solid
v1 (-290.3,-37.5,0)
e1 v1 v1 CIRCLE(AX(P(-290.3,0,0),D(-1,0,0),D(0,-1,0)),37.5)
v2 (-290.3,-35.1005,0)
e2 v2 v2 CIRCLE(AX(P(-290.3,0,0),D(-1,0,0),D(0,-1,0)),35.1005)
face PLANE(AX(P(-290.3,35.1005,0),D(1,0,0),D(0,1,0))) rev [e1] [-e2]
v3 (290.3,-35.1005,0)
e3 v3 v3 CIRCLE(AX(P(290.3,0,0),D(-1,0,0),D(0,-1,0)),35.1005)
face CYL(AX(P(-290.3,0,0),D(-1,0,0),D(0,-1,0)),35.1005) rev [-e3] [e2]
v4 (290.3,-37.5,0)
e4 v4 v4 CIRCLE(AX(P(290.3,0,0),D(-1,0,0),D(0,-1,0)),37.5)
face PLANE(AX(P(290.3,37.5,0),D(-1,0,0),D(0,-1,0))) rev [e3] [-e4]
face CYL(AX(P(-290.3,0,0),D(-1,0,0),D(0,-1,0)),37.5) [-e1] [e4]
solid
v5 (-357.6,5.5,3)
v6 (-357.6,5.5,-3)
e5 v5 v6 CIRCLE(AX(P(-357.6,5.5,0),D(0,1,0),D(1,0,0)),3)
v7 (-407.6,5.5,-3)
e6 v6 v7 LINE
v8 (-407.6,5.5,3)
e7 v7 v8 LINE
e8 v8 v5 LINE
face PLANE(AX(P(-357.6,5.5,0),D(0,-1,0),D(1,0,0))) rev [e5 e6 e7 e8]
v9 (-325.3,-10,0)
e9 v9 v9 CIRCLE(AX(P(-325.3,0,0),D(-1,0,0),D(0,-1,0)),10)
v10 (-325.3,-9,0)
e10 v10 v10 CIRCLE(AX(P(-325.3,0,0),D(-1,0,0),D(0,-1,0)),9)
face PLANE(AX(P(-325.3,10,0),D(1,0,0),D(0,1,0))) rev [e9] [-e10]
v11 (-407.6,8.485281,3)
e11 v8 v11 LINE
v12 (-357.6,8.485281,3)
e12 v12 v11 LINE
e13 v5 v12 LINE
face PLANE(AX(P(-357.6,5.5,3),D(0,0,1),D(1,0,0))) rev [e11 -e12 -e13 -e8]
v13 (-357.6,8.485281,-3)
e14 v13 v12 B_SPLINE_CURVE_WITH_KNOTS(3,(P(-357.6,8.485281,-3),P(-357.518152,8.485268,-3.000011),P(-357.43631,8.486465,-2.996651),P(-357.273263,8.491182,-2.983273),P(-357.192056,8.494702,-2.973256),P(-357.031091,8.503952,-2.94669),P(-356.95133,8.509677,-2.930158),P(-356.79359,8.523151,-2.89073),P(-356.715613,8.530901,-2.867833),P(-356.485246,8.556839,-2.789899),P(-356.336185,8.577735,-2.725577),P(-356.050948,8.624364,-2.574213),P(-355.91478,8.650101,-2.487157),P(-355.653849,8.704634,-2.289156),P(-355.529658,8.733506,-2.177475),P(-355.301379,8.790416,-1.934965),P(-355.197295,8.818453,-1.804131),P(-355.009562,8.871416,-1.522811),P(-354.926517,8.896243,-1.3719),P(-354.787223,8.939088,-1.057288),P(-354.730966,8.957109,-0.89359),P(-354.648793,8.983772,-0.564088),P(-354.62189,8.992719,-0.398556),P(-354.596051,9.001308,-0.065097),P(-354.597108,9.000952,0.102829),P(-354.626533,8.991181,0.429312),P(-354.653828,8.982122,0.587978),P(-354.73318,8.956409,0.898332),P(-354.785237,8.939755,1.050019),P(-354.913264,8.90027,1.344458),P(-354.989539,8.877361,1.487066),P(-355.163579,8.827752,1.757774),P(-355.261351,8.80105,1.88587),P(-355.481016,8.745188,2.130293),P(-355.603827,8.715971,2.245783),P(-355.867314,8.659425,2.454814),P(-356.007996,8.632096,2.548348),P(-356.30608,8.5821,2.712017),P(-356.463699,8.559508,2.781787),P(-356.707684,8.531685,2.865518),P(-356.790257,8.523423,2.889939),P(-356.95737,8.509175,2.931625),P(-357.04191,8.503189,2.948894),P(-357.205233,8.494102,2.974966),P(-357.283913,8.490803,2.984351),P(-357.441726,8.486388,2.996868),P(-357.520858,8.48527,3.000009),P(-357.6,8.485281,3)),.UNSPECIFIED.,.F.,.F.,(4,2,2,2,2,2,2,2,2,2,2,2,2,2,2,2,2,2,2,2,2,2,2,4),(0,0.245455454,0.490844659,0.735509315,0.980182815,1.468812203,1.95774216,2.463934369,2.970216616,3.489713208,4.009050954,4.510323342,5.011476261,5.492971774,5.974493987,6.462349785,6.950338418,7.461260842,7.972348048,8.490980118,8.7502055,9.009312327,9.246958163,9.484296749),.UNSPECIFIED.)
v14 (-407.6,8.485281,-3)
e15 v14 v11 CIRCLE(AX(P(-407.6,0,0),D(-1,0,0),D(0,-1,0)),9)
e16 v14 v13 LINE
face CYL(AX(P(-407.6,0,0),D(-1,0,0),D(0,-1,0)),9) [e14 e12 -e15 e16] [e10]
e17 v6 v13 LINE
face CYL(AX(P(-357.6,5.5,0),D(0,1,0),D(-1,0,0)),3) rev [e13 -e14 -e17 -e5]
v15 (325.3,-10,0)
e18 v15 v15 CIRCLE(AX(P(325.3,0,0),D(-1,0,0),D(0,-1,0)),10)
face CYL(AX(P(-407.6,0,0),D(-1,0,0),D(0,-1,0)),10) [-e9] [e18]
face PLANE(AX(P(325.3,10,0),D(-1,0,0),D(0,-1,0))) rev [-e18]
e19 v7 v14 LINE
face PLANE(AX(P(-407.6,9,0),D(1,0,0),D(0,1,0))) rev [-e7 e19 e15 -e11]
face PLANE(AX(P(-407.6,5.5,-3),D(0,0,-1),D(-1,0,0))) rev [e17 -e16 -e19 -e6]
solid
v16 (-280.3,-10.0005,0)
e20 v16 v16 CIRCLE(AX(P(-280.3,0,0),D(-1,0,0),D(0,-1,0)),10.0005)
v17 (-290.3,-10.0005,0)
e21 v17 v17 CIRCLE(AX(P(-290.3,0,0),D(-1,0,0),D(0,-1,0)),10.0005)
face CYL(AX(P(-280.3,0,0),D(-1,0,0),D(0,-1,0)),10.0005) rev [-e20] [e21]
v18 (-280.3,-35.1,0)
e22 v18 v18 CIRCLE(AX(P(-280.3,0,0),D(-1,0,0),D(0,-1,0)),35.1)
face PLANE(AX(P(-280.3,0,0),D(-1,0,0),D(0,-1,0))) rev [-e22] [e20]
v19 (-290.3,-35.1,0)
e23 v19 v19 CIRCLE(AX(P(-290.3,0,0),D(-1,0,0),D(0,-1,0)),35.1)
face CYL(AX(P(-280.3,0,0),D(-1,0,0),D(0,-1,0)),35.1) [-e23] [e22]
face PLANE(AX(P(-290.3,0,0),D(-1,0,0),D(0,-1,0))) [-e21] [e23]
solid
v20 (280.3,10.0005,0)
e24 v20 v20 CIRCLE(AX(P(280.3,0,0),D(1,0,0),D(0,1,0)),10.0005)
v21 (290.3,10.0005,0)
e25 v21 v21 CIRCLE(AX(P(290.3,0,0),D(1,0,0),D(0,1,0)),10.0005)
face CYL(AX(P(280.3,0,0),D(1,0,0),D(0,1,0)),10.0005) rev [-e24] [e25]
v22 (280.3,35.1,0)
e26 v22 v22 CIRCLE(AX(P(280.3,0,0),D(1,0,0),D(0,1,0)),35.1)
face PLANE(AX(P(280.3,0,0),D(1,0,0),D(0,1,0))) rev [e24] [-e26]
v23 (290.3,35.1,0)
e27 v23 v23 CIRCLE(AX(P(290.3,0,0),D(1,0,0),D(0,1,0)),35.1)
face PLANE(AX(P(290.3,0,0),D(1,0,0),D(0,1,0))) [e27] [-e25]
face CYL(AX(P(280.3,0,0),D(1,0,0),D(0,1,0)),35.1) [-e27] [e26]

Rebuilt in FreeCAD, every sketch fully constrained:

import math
import FreeCAD as App
import Part
import Sketcher
from FreeCAD import Vector


def add_polygon(sketch, points):
    """Adds a closed chain of lines whose ends are joined by coincident constraints."""
    first, n = sketch.GeometryCount, len(points)
    for a, b in zip(points, points[1:] + points[:1]):
        sketch.addGeometry(Part.LineSegment(App.Vector(*a, 0), App.Vector(*b, 0)), False)
    for i in range(n):
        sketch.addConstraint(Sketcher.Constraint("Coincident", first + i, 2, first + (i + 1) % n, 1))

doc = App.newDocument("Part")
params = doc.addObject("Spreadsheet::Sheet", "Params")
for row, (alias, value) in enumerate([
    ("sketch1_width", "580.6 mm"),
    ("revolution_angle", "360 deg"),
    ("sketch2_diameter", "70.2 mm"),
    ("pad1_length", "10 mm"),
    ("sketch3_diameter", "70.2 mm"),
    ("pad2_length", "10 mm"),
    ("sketch4_height", "1 mm"),
    ("sketch4_height2", "9 mm"),
    ("sketch4_width", "650.6 mm"),
    ("sketch4_width2", "82.3 mm"),
    ("revolution2_angle", "360 deg"),
    ("sketch5_radius", "3 mm"),
    ("sketch5_width", "50 mm"),
    ("pocket1_length", "3.5 mm"),
], start=1):
    params.set(f"A{row}", alias)
    params.set(f"B{row}", "=" + value)
    params.setAlias(f"B{row}", alias)

body = doc.addObject("PartDesign::Body", "Body")

# Sketch on XY plane
sketch1 = doc.addObject("Sketcher::SketchObject", "Sketch")
body.addObject(sketch1)
sketch1.AttachmentSupport = (doc.XY_Plane, [""])
sketch1.MapMode = "FlatFace"
add_polygon(sketch1, [(-290.3, 37.5), (-290.3, 35.1), (290.3, 35.1), (290.3, 37.5)])  # lines 0-3
sketch1.addConstraint([
    Sketcher.Constraint("Vertical", 0),
    Sketcher.Constraint("Horizontal", 1),
    Sketcher.Constraint("Vertical", 2),
    Sketcher.Constraint("Horizontal", 3),
    Sketcher.Constraint("DistanceX", 1, 1, 1, 2, 580.6),
    Sketcher.Constraint("DistanceX", 0, 2, -1, 1, 290.3),
    Sketcher.Constraint("DistanceY", -1, 1, 2, 2, 37.5),
    Sketcher.Constraint("DistanceY", 0, 2, 0, 1, 2.3995),
])
sketch1.setExpression("Constraints[8]", "Params.sketch1_width")
revolution = doc.addObject("PartDesign::Revolution", "Revolution")
body.addObject(revolution)
revolution.Profile = sketch1
revolution.ReferenceAxis = (sketch1, ["H_Axis"])
revolution.setExpression("Angle", "Params.revolution_angle")
body2 = doc.addObject("PartDesign::Body", "Body001")

# Sketch on YZ plane
sketch2 = doc.addObject("Sketcher::SketchObject", "Sketch001")
body2.addObject(sketch2)
sketch2.AttachmentSupport = (doc.getObject("YZ_Plane001"), [""])
sketch2.MapMode = "FlatFace"
sketch2.AttachmentOffset = App.Placement(Vector(0, 0, -290.3), App.Rotation())
sketch2.addGeometry([
    Part.Circle(Vector(0, 0, 0), Vector(0, 0, 1), 35),
    Part.Circle(Vector(0, 0, 0), Vector(0, 0, 1), 10),
], False)
sketch2.addConstraint([
    Sketcher.Constraint("Coincident", 0, 3, -1, 1),
    Sketcher.Constraint("Coincident", 1, 3, -1, 1),
    Sketcher.Constraint("Diameter", 0, 70.2),
    Sketcher.Constraint("Diameter", 1, 20.001),
])
sketch2.setExpression("Constraints[2]", "Params.sketch2_diameter")
pad1 = doc.addObject("PartDesign::Pad", "Pad")
body2.addObject(pad1)
pad1.Profile = sketch2
pad1.setExpression("Length", "Params.pad1_length")
body3 = doc.addObject("PartDesign::Body", "Body002")

# Sketch on YZ plane
sketch3 = doc.addObject("Sketcher::SketchObject", "Sketch002")
body3.addObject(sketch3)
sketch3.AttachmentSupport = (doc.getObject("YZ_Plane002"), [""])
sketch3.MapMode = "FlatFace"
sketch3.AttachmentOffset = App.Placement(Vector(0, 0, 290.3), App.Rotation())
sketch3.addGeometry([
    Part.Circle(Vector(0, 0, 0), Vector(0, 0, 1), 35),
    Part.Circle(Vector(0, 0, 0), Vector(0, 0, 1), 10),
], False)
sketch3.addConstraint([
    Sketcher.Constraint("Coincident", 0, 3, -1, 1),
    Sketcher.Constraint("Coincident", 1, 3, -1, 1),
    Sketcher.Constraint("Diameter", 0, 70.2),
    Sketcher.Constraint("Diameter", 1, 20.001),
])
sketch3.setExpression("Constraints[2]", "Params.sketch3_diameter")
pad2 = doc.addObject("PartDesign::Pad", "Pad001")
body3.addObject(pad2)
pad2.Profile = sketch3
pad2.setExpression("Length", "Params.pad2_length")
pad2.Reversed = True
body4 = doc.addObject("PartDesign::Body", "Body003")

# Sketch on XY plane
sketch4 = doc.addObject("Sketcher::SketchObject", "Sketch003")
body4.addObject(sketch4)
sketch4.AttachmentSupport = (doc.getObject("XY_Plane003"), [""])
sketch4.MapMode = "FlatFace"
add_polygon(sketch4, [(325.3, 10), (-325.3, 10), (-325.3, 9), (-407.6, 9), (-407.6, 0), (325.3, 0)])  # lines 0-5
sketch4.addConstraint([
    Sketcher.Constraint("Horizontal", 0),
    Sketcher.Constraint("Vertical", 1),
    Sketcher.Constraint("Horizontal", 2),
    Sketcher.Constraint("Vertical", 3),
    Sketcher.Constraint("Horizontal", 4),
    Sketcher.Constraint("Vertical", 5),
    Sketcher.Constraint("PointOnObject", 3, 2, -1),
    Sketcher.Constraint("DistanceY", 1, 2, 1, 1, 1.0),
    Sketcher.Constraint("DistanceY", 3, 2, 3, 1, 9.0),
    Sketcher.Constraint("DistanceX", 0, 2, 0, 1, 650.6),
    Sketcher.Constraint("DistanceX", 2, 2, 2, 1, 82.3),
    Sketcher.Constraint("DistanceX", 0, 2, -1, 1, 325.3),
])
sketch4.setExpression("Constraints[13]", "Params.sketch4_height")
sketch4.setExpression("Constraints[14]", "Params.sketch4_height2")
sketch4.setExpression("Constraints[15]", "Params.sketch4_width")
sketch4.setExpression("Constraints[16]", "Params.sketch4_width2")
revolution2 = doc.addObject("PartDesign::Revolution", "Revolution001")
body4.addObject(revolution2)
revolution2.Profile = sketch4
revolution2.ReferenceAxis = (sketch4, ["H_Axis"])
revolution2.setExpression("Angle", "Params.revolution2_angle")

# Sketch on XZ plane
sketch5 = doc.addObject("Sketcher::SketchObject", "Sketch004")
body4.addObject(sketch5)
sketch5.AttachmentSupport = (doc.getObject("XZ_Plane003"), [""])
sketch5.MapMode = "FlatFace"
sketch5.AttachmentOffset = App.Placement(Vector(0, 0, -9), App.Rotation())
sketch5.addGeometry([
    Part.LineSegment(Vector(-357.6, -3, 0), Vector(-407.6, -3, 0)),
    Part.LineSegment(Vector(-407.6, -3, 0), Vector(-407.6, 3, 0)),
    Part.LineSegment(Vector(-407.6, 3, 0), Vector(-357.6, 3, 0)),
    Part.ArcOfCircle(Part.Circle(Vector(-357.6, 0, 0), Vector(0, 0, 1), 3), math.radians(-90), math.radians(90)),
], False)
sketch5.addConstraint([
    Sketcher.Constraint("Coincident", 0, 2, 1, 1),
    Sketcher.Constraint("Coincident", 1, 2, 2, 1),
    Sketcher.Constraint("Tangent", 2, 2, 3, 2),
    Sketcher.Constraint("Tangent", 3, 1, 0, 1),
    Sketcher.Constraint("Horizontal", 0),
    Sketcher.Constraint("Vertical", 1),
    Sketcher.Constraint("Horizontal", 2),
    Sketcher.Constraint("PointOnObject", 3, 3, -1),
    Sketcher.Constraint("Radius", 3, 3.0),
    Sketcher.Constraint("DistanceX", 0, 2, 0, 1, 50.0),
    Sketcher.Constraint("DistanceX", 3, 3, -1, 1, 357.6),
])
sketch5.setExpression("Constraints[8]", "Params.sketch5_radius")
sketch5.setExpression("Constraints[9]", "Params.sketch5_width")
pocket1 = doc.addObject("PartDesign::Pocket", "Pocket")
body4.addObject(pocket1)
pocket1.Profile = sketch5
pocket1.setExpression("Length", "Params.pocket1_length")
pocket1.Reversed = True

doc.recompute()
